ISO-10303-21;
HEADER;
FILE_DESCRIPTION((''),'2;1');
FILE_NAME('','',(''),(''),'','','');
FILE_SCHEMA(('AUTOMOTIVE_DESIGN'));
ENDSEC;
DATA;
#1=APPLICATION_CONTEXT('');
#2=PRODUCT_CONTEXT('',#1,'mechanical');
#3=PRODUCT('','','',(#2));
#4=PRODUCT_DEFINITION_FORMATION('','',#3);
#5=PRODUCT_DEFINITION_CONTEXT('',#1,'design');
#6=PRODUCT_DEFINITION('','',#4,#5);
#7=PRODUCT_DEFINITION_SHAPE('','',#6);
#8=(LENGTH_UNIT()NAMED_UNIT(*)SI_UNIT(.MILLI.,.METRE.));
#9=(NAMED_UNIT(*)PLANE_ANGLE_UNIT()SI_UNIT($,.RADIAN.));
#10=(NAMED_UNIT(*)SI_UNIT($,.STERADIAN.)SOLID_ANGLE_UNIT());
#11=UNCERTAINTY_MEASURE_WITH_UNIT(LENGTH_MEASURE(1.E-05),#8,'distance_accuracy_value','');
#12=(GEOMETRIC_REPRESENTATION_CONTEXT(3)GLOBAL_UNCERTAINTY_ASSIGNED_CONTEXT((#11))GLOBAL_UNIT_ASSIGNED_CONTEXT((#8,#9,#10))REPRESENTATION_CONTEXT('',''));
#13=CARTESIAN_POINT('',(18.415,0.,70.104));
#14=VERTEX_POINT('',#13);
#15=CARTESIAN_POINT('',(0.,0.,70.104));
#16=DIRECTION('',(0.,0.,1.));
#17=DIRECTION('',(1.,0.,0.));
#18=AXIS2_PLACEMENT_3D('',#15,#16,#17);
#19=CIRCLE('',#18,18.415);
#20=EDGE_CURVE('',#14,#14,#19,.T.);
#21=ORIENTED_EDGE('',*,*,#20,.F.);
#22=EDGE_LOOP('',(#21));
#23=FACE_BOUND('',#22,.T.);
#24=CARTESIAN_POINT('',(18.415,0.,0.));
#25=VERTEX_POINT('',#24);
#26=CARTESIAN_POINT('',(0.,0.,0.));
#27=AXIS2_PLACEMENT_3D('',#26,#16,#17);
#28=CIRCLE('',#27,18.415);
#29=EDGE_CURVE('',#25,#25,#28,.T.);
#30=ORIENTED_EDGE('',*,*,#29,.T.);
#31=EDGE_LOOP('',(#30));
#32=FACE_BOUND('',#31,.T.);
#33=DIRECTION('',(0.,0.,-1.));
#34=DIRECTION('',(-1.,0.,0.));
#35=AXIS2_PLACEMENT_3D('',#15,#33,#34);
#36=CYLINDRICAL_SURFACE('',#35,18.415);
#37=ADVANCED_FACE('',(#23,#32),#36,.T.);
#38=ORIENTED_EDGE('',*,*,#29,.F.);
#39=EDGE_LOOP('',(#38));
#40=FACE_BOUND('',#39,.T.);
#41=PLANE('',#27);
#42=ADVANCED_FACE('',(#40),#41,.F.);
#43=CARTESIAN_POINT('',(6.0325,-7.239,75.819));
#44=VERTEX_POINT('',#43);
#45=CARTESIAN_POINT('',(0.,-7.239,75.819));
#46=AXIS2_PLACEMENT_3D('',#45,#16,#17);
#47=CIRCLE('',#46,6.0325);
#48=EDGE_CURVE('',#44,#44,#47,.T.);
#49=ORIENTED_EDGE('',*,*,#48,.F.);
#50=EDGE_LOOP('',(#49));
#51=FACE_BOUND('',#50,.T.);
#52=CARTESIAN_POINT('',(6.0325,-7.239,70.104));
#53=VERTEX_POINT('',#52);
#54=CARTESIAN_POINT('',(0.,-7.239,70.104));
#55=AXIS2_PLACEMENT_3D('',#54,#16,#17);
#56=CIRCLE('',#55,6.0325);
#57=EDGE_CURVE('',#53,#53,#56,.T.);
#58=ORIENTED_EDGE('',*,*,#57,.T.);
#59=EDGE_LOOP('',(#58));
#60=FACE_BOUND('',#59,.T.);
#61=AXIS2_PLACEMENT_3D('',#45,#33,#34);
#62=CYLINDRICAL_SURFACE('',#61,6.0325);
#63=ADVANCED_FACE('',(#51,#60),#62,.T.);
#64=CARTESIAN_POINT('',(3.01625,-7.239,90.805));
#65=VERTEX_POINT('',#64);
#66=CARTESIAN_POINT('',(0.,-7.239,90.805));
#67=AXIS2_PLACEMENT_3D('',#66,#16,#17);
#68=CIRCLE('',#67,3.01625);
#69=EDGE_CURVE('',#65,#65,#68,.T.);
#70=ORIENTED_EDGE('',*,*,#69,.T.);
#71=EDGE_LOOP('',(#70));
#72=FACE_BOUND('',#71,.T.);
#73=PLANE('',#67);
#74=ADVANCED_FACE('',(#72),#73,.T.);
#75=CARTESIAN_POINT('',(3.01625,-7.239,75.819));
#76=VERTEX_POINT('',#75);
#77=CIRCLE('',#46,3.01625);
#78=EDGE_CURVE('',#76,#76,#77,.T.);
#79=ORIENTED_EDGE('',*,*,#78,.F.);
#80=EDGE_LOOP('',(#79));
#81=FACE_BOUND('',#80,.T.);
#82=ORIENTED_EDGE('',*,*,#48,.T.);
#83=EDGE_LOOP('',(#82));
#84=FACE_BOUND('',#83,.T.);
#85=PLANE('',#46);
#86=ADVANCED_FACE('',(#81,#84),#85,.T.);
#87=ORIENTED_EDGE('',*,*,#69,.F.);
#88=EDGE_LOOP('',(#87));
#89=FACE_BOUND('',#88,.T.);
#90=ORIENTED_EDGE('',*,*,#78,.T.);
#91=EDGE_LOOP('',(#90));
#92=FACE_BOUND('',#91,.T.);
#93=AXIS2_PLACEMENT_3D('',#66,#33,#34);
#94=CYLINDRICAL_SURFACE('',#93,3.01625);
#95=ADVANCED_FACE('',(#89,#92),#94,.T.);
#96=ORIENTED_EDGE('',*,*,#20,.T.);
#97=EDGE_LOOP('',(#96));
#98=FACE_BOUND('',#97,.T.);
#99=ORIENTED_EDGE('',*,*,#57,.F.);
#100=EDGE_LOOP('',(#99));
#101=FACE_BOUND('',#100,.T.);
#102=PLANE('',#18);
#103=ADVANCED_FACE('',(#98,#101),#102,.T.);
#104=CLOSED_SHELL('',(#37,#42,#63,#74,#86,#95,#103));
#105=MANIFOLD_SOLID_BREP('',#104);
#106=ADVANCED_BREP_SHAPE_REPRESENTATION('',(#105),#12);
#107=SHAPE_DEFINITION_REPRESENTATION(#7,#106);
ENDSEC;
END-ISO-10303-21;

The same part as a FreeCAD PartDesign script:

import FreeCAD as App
import Part
import Sketcher
Q = App.Units.Quantity

doc = App.newDocument("Part")
params = doc.addObject("Spreadsheet::Sheet", "Params")
for row, (alias, value) in enumerate([
    ("sketch1_diameter", "1.45 in"),
    ("pad1_length", "2.76 in"),
    ("sketch2_diameter", "0.475 in"),
    ("pad2_length", "0.225 in"),
    ("pad3_length", "0.59 in"),
], start=1):
    params.set(f"A{row}", alias)
    params.set(f"B{row}", "=" + value)
    params.setAlias(f"B{row}", alias)

body = doc.addObject("PartDesign::Body", "Body")

# Sketch on XY plane
sketch1 = body.newObject("Sketcher::SketchObject", "Sketch")
sketch1.AttachmentSupport = (doc.getObject("XY_Plane"), [""])
sketch1.MapMode = "FlatFace"
sketch1.addGeometry(Part.Circle(App.Vector(0, 0, 0), App.Vector(0, 0, 1), 18), False)
sketch1.addConstraint(Sketcher.Constraint("Coincident", 0, 3, -1, 1))
sketch1.addConstraint(Sketcher.Constraint("Diameter", 0, Q("1.45 in")))
sketch1.setExpression("Constraints[1]", "Params.sketch1_diameter")
pad1 = body.newObject("PartDesign::Pad", "Pad")
pad1.Profile = sketch1
pad1.setExpression("Length", "Params.pad1_length")

# Sketch on XY plane
sketch2 = body.newObject("Sketcher::SketchObject", "Sketch001")
sketch2.AttachmentSupport = (doc.getObject("XY_Plane"), [""])
sketch2.MapMode = "FlatFace"
sketch2.AttachmentOffset = App.Placement(App.Vector(0, 0, 2.76 * 25.4), App.Rotation())
sketch2.addGeometry(Part.Circle(App.Vector(0, -7, 0), App.Vector(0, 0, 1), 6), False)
sketch2.addConstraint(Sketcher.Constraint("PointOnObject", 0, 3, -2))
sketch2.addConstraint(Sketcher.Constraint("Diameter", 0, Q("0.475 in")))
sketch2.addConstraint(Sketcher.Constraint("DistanceY", 0, 3, -1, 1, Q("0.285 in")))
sketch2.setExpression("Constraints[1]", "Params.sketch2_diameter")
pad2 = body.newObject("PartDesign::Pad", "Pad001")
pad2.Profile = sketch2
pad2.setExpression("Length", "Params.pad2_length")

# Sketch on XY plane
sketch3 = body.newObject("Sketcher::SketchObject", "Sketch002")
sketch3.AttachmentSupport = (doc.getObject("XY_Plane"), [""])
sketch3.MapMode = "FlatFace"
sketch3.AttachmentOffset = App.Placement(App.Vector(0, 0, 2.985 * 25.4), App.Rotation())
sketch3.addGeometry(Part.Circle(App.Vector(0, -7.2, 0), App.Vector(0, 0, 1), 3), False)
sketch3.addConstraint(Sketcher.Constraint("PointOnObject", 0, 3, -2))
sketch3.addConstraint(Sketcher.Constraint("Diameter", 0, Q("0.2375 in")))
sketch3.addConstraint(Sketcher.Constraint("DistanceY", 0, 3, -1, 1, Q("0.285 in")))
pad3 = body.newObject("PartDesign::Pad", "Pad002")
pad3.Profile = sketch3
pad3.setExpression("Length", "Params.pad3_length")

doc.recompute()
